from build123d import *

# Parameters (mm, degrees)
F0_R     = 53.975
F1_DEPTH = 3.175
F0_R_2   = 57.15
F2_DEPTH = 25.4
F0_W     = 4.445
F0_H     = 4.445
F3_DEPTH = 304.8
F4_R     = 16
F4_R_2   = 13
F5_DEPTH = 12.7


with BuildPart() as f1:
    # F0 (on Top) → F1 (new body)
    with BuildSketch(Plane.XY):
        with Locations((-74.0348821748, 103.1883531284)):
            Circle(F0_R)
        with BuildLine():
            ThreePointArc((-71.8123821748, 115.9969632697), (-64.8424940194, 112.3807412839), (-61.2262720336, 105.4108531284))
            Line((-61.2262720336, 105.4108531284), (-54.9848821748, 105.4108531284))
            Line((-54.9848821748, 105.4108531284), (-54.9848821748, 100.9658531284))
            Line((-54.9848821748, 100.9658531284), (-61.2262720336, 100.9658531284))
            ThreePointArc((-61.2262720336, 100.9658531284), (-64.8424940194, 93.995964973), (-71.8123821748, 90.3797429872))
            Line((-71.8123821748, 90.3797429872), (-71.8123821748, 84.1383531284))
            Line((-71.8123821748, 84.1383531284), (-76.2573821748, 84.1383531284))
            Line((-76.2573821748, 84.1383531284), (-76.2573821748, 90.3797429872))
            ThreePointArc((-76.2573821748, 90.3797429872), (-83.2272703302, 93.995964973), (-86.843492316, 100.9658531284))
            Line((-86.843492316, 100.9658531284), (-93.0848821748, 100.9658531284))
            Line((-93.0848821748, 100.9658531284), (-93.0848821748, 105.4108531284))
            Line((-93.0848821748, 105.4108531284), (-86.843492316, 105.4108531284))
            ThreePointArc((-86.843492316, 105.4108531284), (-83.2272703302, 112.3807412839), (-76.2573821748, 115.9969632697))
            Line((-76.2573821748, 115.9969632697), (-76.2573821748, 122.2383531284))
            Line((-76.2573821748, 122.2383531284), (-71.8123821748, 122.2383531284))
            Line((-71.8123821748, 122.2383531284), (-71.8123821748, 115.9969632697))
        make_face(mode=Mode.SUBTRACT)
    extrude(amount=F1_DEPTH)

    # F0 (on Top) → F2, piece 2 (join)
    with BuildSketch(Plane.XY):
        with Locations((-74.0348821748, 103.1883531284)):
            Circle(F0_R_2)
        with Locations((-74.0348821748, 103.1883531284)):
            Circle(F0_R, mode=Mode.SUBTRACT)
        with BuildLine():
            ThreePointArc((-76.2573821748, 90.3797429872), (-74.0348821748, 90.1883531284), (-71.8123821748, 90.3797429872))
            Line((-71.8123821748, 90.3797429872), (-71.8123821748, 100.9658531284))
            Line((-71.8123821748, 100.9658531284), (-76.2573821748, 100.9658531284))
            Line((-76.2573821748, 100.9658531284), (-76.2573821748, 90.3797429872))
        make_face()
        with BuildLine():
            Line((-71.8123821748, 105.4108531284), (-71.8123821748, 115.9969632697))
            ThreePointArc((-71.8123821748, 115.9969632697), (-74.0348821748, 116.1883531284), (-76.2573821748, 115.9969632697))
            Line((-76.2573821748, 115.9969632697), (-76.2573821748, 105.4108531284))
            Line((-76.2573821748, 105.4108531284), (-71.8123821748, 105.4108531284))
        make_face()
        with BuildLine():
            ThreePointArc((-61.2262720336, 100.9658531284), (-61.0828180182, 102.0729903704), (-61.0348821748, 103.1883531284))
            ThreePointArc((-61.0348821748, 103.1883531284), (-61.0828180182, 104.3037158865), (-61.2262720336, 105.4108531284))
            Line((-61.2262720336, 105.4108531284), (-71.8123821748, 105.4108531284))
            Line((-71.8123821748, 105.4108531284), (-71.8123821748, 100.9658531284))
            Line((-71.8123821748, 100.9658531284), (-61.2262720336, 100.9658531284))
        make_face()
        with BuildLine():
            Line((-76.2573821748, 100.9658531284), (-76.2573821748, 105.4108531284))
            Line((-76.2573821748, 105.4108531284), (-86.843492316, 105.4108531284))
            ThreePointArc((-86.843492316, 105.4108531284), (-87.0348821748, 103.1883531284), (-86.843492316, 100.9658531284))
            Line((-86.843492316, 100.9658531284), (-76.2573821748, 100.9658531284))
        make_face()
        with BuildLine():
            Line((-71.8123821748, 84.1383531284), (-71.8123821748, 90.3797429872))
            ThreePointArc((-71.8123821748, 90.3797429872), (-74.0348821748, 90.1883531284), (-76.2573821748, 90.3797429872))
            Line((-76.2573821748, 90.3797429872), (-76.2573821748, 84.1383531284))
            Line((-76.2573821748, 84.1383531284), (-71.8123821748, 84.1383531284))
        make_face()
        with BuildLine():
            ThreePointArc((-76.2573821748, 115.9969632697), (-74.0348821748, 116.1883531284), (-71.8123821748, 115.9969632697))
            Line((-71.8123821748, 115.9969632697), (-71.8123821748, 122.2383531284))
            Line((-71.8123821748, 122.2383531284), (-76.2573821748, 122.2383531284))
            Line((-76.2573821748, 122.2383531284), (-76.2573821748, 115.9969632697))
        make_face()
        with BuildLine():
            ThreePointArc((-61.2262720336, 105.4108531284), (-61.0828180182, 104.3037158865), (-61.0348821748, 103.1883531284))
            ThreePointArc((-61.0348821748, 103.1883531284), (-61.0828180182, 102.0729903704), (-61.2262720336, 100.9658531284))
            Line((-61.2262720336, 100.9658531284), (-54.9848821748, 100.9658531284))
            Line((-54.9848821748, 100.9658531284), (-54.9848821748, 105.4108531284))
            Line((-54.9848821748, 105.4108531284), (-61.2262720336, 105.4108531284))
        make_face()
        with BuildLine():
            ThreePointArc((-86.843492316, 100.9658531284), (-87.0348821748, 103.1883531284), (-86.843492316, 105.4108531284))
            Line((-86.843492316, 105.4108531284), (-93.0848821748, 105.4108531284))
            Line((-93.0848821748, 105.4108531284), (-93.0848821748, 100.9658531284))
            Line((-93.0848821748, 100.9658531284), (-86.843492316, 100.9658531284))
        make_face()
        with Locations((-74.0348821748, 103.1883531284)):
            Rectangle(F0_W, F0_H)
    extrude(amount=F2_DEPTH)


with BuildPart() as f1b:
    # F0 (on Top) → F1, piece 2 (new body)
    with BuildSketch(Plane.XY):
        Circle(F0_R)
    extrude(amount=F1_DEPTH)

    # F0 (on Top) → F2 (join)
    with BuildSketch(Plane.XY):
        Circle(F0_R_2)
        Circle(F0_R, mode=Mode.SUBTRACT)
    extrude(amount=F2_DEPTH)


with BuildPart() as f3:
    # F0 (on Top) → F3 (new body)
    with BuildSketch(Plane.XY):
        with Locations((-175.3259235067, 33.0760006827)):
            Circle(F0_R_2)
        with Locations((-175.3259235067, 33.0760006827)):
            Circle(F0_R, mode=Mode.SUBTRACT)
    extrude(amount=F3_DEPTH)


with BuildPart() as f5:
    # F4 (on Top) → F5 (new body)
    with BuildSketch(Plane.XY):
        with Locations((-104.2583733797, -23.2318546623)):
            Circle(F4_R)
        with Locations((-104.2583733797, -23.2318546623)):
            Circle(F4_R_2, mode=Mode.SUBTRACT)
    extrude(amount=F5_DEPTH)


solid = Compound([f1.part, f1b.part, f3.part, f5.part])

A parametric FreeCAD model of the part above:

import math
import FreeCAD as App
import Part
import Sketcher

V = App.Vector
Q = App.Units.Quantity

doc = App.newDocument("Part")
params = doc.addObject("Spreadsheet::Sheet", "Params")
for row, (alias, value) in enumerate([
    ("sketch1_diameter", "4.25 in"),
    ("sketch1_width", "0.175 in"),
    ("pad1_length", "0.125 in"),
    ("sketch2_diameter", "4.5 in"),
    ("sketch2_diameter2", "4.25 in"),
    ("sketch2_width", "0.175 in"),
    ("pad2_length", "1 in"),
    ("sketch3_diameter", "4.25 in"),
    ("pad3_length", "0.125 in"),
    ("sketch4_diameter", "4.5 in"),
    ("sketch4_diameter2", "4.25 in"),
    ("pad4_length", "1 in"),
    ("sketch5_diameter", "4.5 in"),
    ("sketch5_diameter2", "4.25 in"),
    ("pad5_length", "12 in"),
    ("pad6_length", "0.5 in"),
], start=1):
    params.set(f"A{row}", alias)
    params.set(f"B{row}", "=" + value)
    params.setAlias(f"B{row}", alias)

body = doc.addObject("PartDesign::Body", "Body")

sketch1 = doc.addObject("Sketcher::SketchObject", "Sketch")
body.addObject(sketch1)
sketch1.AttachmentSupport = (doc.XY_Plane, [""])
sketch1.MapMode = "FlatFace"
sketch1.addGeometry(Part.Circle(V(-74, 103.2, 0), V(0, 0, 1), 54), False)
sketch1.addGeometry(Part.LineSegment(V(-71.8, 122.2, 0), V(-71.8, 116, 0)), False)
sketch1.addGeometry(Part.ArcOfCircle(Part.Circle(V(-74, 103.2, 0), V(0, 0, 1), 13), math.radians(10), math.radians(80)), False)
sketch1.addGeometry(Part.LineSegment(V(-61.2, 105.4, 0), V(-55, 105.4, 0)), False)
sketch1.addGeometry(Part.LineSegment(V(-55, 105.4, 0), V(-55, 101, 0)), False)
sketch1.addGeometry(Part.LineSegment(V(-55, 101, 0), V(-61.2, 101, 0)), False)
sketch1.addGeometry(Part.ArcOfCircle(Part.Circle(V(-74, 103.2, 0), V(0, 0, 1), 13), math.radians(-80), math.radians(-10)), False)
sketch1.addGeometry(Part.LineSegment(V(-71.8, 90.4, 0), V(-71.8, 84.1, 0)), False)
sketch1.addGeometry(Part.LineSegment(V(-71.8, 84.1, 0), V(-76.3, 84.1, 0)), False)
sketch1.addGeometry(Part.LineSegment(V(-76.3, 84.1, 0), V(-76.3, 90.4, 0)), False)
sketch1.addGeometry(Part.ArcOfCircle(Part.Circle(V(-74, 103.2, 0), V(0, 0, 1), 13), math.radians(-170), math.radians(-100)), False)
sketch1.addGeometry(Part.LineSegment(V(-86.8, 101, 0), V(-93.1, 101, 0)), False)
sketch1.addGeometry(Part.LineSegment(V(-93.1, 101, 0), V(-93.1, 105.4, 0)), False)
sketch1.addGeometry(Part.LineSegment(V(-93.1, 105.4, 0), V(-86.8, 105.4, 0)), False)
sketch1.addGeometry(Part.ArcOfCircle(Part.Circle(V(-74, 103.2, 0), V(0, 0, 1), 13), math.radians(100), math.radians(170)), False)
sketch1.addGeometry(Part.LineSegment(V(-76.3, 116, 0), V(-76.3, 122.2, 0)), False)
sketch1.addGeometry(Part.LineSegment(V(-76.3, 122.2, 0), V(-71.8, 122.2, 0)), False)
sketch1.addConstraint(Sketcher.Constraint("Coincident", 1, 2, 2, 2))
sketch1.addConstraint(Sketcher.Constraint("Coincident", 2, 1, 3, 1))
sketch1.addConstraint(Sketcher.Constraint("Coincident", 3, 2, 4, 1))
sketch1.addConstraint(Sketcher.Constraint("Coincident", 4, 2, 5, 1))
sketch1.addConstraint(Sketcher.Constraint("Coincident", 5, 2, 6, 2))
sketch1.addConstraint(Sketcher.Constraint("Coincident", 6, 1, 7, 1))
sketch1.addConstraint(Sketcher.Constraint("Coincident", 7, 2, 8, 1))
sketch1.addConstraint(Sketcher.Constraint("Coincident", 8, 2, 9, 1))
sketch1.addConstraint(Sketcher.Constraint("Coincident", 9, 2, 10, 2))
sketch1.addConstraint(Sketcher.Constraint("Coincident", 10, 1, 11, 1))
sketch1.addConstraint(Sketcher.Constraint("Coincident", 11, 2, 12, 1))
sketch1.addConstraint(Sketcher.Constraint("Coincident", 12, 2, 13, 1))
sketch1.addConstraint(Sketcher.Constraint("Coincident", 13, 2, 14, 2))
sketch1.addConstraint(Sketcher.Constraint("Coincident", 14, 1, 15, 1))
sketch1.addConstraint(Sketcher.Constraint("Coincident", 15, 2, 16, 1))
sketch1.addConstraint(Sketcher.Constraint("Coincident", 16, 2, 1, 1))
sketch1.addConstraint(Sketcher.Constraint("Vertical", 1))
sketch1.addConstraint(Sketcher.Constraint("Horizontal", 3))
sketch1.addConstraint(Sketcher.Constraint("Vertical", 4))
sketch1.addConstraint(Sketcher.Constraint("Horizontal", 5))
sketch1.addConstraint(Sketcher.Constraint("Vertical", 7))
sketch1.addConstraint(Sketcher.Constraint("Horizontal", 8))
sketch1.addConstraint(Sketcher.Constraint("Vertical", 9))
sketch1.addConstraint(Sketcher.Constraint("Horizontal", 11))
sketch1.addConstraint(Sketcher.Constraint("Vertical", 12))
sketch1.addConstraint(Sketcher.Constraint("Horizontal", 13))
sketch1.addConstraint(Sketcher.Constraint("Vertical", 15))
sketch1.addConstraint(Sketcher.Constraint("Horizontal", 16))
sketch1.addConstraint(Sketcher.Constraint("Coincident", 2, 3, 0, 3))
sketch1.addConstraint(Sketcher.Constraint("Coincident", 6, 3, 0, 3))
sketch1.addConstraint(Sketcher.Constraint("Coincident", 10, 3, 0, 3))
sketch1.addConstraint(Sketcher.Constraint("Coincident", 14, 3, 0, 3))
sketch1.addConstraint(Sketcher.Constraint("Equal", 2, 6))
sketch1.addConstraint(Sketcher.Constraint("Equal", 6, 10))
sketch1.addConstraint(Sketcher.Constraint("Equal", 10, 14))
sketch1.addConstraint(Sketcher.Constraint("Horizontal", 6, 1, 9, 2))
sketch1.addConstraint(Sketcher.Constraint("Horizontal", 5, 2, 10, 1))
sketch1.addConstraint(Sketcher.Constraint("Horizontal", 3, 2, 12, 2))
sketch1.addConstraint(Sketcher.Constraint("Horizontal", 1, 2, 14, 1))
sketch1.addConstraint(Sketcher.Constraint("Vertical", 2, 1, 5, 2))
sketch1.addConstraint(Sketcher.Constraint("Vertical", 1, 2, 6, 1))
sketch1.addConstraint(Sketcher.Constraint("Equal", 5, 11))
sketch1.addConstraint(Sketcher.Constraint("Equal", 13, 1))
sketch1.addConstraint(Sketcher.Constraint("Equal", 16, 4))
sketch1.addConstraint(Sketcher.Constraint("Equal", 1, 7))
sketch1.addConstraint(Sketcher.Constraint("Diameter", 0, Q("4.25 in")))
sketch1.addConstraint(Sketcher.Constraint("DistanceX", 8, 2, 8, 1, Q("0.175 in")))
sketch1.addConstraint(Sketcher.Constraint("Radius", 2, 13.0))
sketch1.addConstraint(Sketcher.Constraint("DistanceX", 2, 3, 3, 2, Q("0.75 in")))
sketch1.addConstraint(Sketcher.Constraint("DistanceX", 0, 3, -1, 1, 74.034882))
sketch1.addConstraint(Sketcher.Constraint("DistanceY", -1, 1, 0, 3, 103.188353))
sketch1.setExpression("Constraints[45]", "Params.sketch1_diameter")
sketch1.setExpression("Constraints[46]", "Params.sketch1_width")
pad1 = doc.addObject("PartDesign::Pad", "Pad")
body.addObject(pad1)
pad1.Profile = sketch1
pad1.setExpression("Length", "Params.pad1_length")

sketch2 = doc.addObject("Sketcher::SketchObject", "Sketch001")
body.addObject(sketch2)
sketch2.AttachmentSupport = (doc.XY_Plane, [""])
sketch2.MapMode = "FlatFace"
sketch2.addGeometry(Part.Circle(V(-74, 103.2, 0), V(0, 0, 1), 57.1), False)
sketch2.addGeometry(Part.Circle(V(-74, 103.2, 0), V(0, 0, 1), 54), False)
sketch2.addGeometry(Part.LineSegment(V(-76.3, 101, 0), V(-76.3, 84.1, 0)), False)
sketch2.addGeometry(Part.LineSegment(V(-76.3, 84.1, 0), V(-71.8, 84.1, 0)), False)
sketch2.addGeometry(Part.LineSegment(V(-71.8, 84.1, 0), V(-71.8, 101, 0)), False)
sketch2.addGeometry(Part.LineSegment(V(-71.8, 101, 0), V(-55, 101, 0)), False)
sketch2.addGeometry(Part.LineSegment(V(-55, 101, 0), V(-55, 105.4, 0)), False)
sketch2.addGeometry(Part.LineSegment(V(-55, 105.4, 0), V(-71.8, 105.4, 0)), False)
sketch2.addGeometry(Part.LineSegment(V(-71.8, 105.4, 0), V(-71.8, 122.2, 0)), False)
sketch2.addGeometry(Part.LineSegment(V(-71.8, 122.2, 0), V(-76.3, 122.2, 0)), False)
sketch2.addGeometry(Part.LineSegment(V(-76.3, 122.2, 0), V(-76.3, 105.4, 0)), False)
sketch2.addGeometry(Part.LineSegment(V(-76.3, 105.4, 0), V(-93.1, 105.4, 0)), False)
sketch2.addGeometry(Part.LineSegment(V(-93.1, 105.4, 0), V(-93.1, 101, 0)), False)
sketch2.addGeometry(Part.LineSegment(V(-93.1, 101, 0), V(-76.3, 101, 0)), False)
sketch2.addConstraint(Sketcher.Constraint("Coincident", 2, 2, 3, 1))
sketch2.addConstraint(Sketcher.Constraint("Coincident", 3, 2, 4, 1))
sketch2.addConstraint(Sketcher.Constraint("Coincident", 4, 2, 5, 1))
sketch2.addConstraint(Sketcher.Constraint("Coincident", 5, 2, 6, 1))
sketch2.addConstraint(Sketcher.Constraint("Coincident", 6, 2, 7, 1))
sketch2.addConstraint(Sketcher.Constraint("Coincident", 7, 2, 8, 1))
sketch2.addConstraint(Sketcher.Constraint("Coincident", 8, 2, 9, 1))
sketch2.addConstraint(Sketcher.Constraint("Coincident", 9, 2, 10, 1))
sketch2.addConstraint(Sketcher.Constraint("Coincident", 10, 2, 11, 1))
sketch2.addConstraint(Sketcher.Constraint("Coincident", 11, 2, 12, 1))
sketch2.addConstraint(Sketcher.Constraint("Coincident", 12, 2, 13, 1))
sketch2.addConstraint(Sketcher.Constraint("Coincident", 13, 2, 2, 1))
sketch2.addConstraint(Sketcher.Constraint("Vertical", 2))
sketch2.addConstraint(Sketcher.Constraint("Horizontal", 3))
sketch2.addConstraint(Sketcher.Constraint("Vertical", 4))
sketch2.addConstraint(Sketcher.Constraint("Horizontal", 5))
sketch2.addConstraint(Sketcher.Constraint("Vertical", 6))
sketch2.addConstraint(Sketcher.Constraint("Horizontal", 7))
sketch2.addConstraint(Sketcher.Constraint("Vertical", 8))
sketch2.addConstraint(Sketcher.Constraint("Horizontal", 9))
sketch2.addConstraint(Sketcher.Constraint("Vertical", 10))
sketch2.addConstraint(Sketcher.Constraint("Horizontal", 11))
sketch2.addConstraint(Sketcher.Constraint("Vertical", 12))
sketch2.addConstraint(Sketcher.Constraint("Horizontal", 13))
sketch2.addConstraint(Sketcher.Constraint("Coincident", 1, 3, 0, 3))
sketch2.addConstraint(Sketcher.Constraint("Horizontal", 7, 2, 10, 2))
sketch2.addConstraint(Sketcher.Constraint("Horizontal", 5, 2, 12, 2))
sketch2.addConstraint(Sketcher.Constraint("Vertical", 4, 2, 7, 2))
sketch2.addConstraint(Sketcher.Constraint("Vertical", 2, 2, 9, 2))
sketch2.addConstraint(Sketcher.Constraint("Equal", 7, 11))
sketch2.addConstraint(Sketcher.Constraint("Equal", 13, 2))
sketch2.addConstraint(Sketcher.Constraint("Equal", 9, 6))
sketch2.addConstraint(Sketcher.Constraint("Equal", 4, 8))
sketch2.addConstraint(Sketcher.Constraint("Diameter", 0, Q("4.5 in")))
sketch2.addConstraint(Sketcher.Constraint("Diameter", 1, Q("4.25 in")))
sketch2.addConstraint(Sketcher.Constraint("DistanceX", 3, 1, 3, 2, Q("0.175 in")))
sketch2.addConstraint(Sketcher.Constraint("DistanceY", 2, 2, 0, 3, Q("0.75 in")))
sketch2.addConstraint(Sketcher.Constraint("DistanceX", 0, 3, 5, 2, Q("0.75 in")))
sketch2.addConstraint(Sketcher.Constraint("DistanceY", 0, 3, 8, 2, Q("0.75 in")))
sketch2.addConstraint(Sketcher.Constraint("DistanceX", 0, 3, -1, 1, 74.034882))
sketch2.addConstraint(Sketcher.Constraint("DistanceY", -1, 1, 0, 3, 103.188353))
sketch2.setExpression("Constraints[33]", "Params.sketch2_diameter")
sketch2.setExpression("Constraints[34]", "Params.sketch2_diameter2")
sketch2.setExpression("Constraints[35]", "Params.sketch2_width")
pad2 = doc.addObject("PartDesign::Pad", "Pad001")
body.addObject(pad2)
pad2.Profile = sketch2
pad2.setExpression("Length", "Params.pad2_length")
body2 = doc.addObject("PartDesign::Body", "Body001")

sketch3 = doc.addObject("Sketcher::SketchObject", "Sketch002")
body2.addObject(sketch3)
sketch3.AttachmentSupport = (doc.getObject("XY_Plane001"), [""])
sketch3.MapMode = "FlatFace"
sketch3.addGeometry(Part.Circle(V(0, 0, 0), V(0, 0, 1), 54), False)
sketch3.addConstraint(Sketcher.Constraint("Coincident", 0, 3, -1, 1))
sketch3.addConstraint(Sketcher.Constraint("Diameter", 0, Q("4.25 in")))
sketch3.setExpression("Constraints[1]", "Params.sketch3_diameter")
pad3 = doc.addObject("PartDesign::Pad", "Pad002")
body2.addObject(pad3)
pad3.Profile = sketch3
pad3.setExpression("Length", "Params.pad3_length")

sketch4 = doc.addObject("Sketcher::SketchObject", "Sketch003")
body2.addObject(sketch4)
sketch4.AttachmentSupport = (doc.getObject("XY_Plane001"), [""])
sketch4.MapMode = "FlatFace"
sketch4.addGeometry(Part.Circle(V(0, 0, 0), V(0, 0, 1), 57), False)
sketch4.addGeometry(Part.Circle(V(0, 0, 0), V(0, 0, 1), 54), False)
sketch4.addConstraint(Sketcher.Constraint("Coincident", 0, 3, -1, 1))
sketch4.addConstraint(Sketcher.Constraint("Coincident", 1, 3, -1, 1))
sketch4.addConstraint(Sketcher.Constraint("Diameter", 0, Q("4.5 in")))
sketch4.addConstraint(Sketcher.Constraint("Diameter", 1, Q("4.25 in")))
sketch4.setExpression("Constraints[2]", "Params.sketch4_diameter")
sketch4.setExpression("Constraints[3]", "Params.sketch4_diameter2")
pad4 = doc.addObject("PartDesign::Pad", "Pad003")
body2.addObject(pad4)
pad4.Profile = sketch4
pad4.setExpression("Length", "Params.pad4_length")
body3 = doc.addObject("PartDesign::Body", "Body002")

sketch5 = doc.addObject("Sketcher::SketchObject", "Sketch004")
body3.addObject(sketch5)
sketch5.AttachmentSupport = (doc.getObject("XY_Plane002"), [""])
sketch5.MapMode = "FlatFace"
sketch5.addGeometry(Part.Circle(V(-175, 33, 0), V(0, 0, 1), 57), False)
sketch5.addGeometry(Part.Circle(V(-175, 33, 0), V(0, 0, 1), 54), False)
sketch5.addConstraint(Sketcher.Constraint("Coincident", 1, 3, 0, 3))
sketch5.addConstraint(Sketcher.Constraint("Diameter", 0, Q("4.5 in")))
sketch5.addConstraint(Sketcher.Constraint("Diameter", 1, Q("4.25 in")))
sketch5.addConstraint(Sketcher.Constraint("DistanceY", -1, 1, 0, 3, 33.076001))
sketch5.addConstraint(Sketcher.Constraint("DistanceX", 0, 3, -1, 1, 175.325924))
sketch5.setExpression("Constraints[1]", "Params.sketch5_diameter")
sketch5.setExpression("Constraints[2]", "Params.sketch5_diameter2")
pad5 = doc.addObject("PartDesign::Pad", "Pad004")
body3.addObject(pad5)
pad5.Profile = sketch5
pad5.setExpression("Length", "Params.pad5_length")
body4 = doc.addObject("PartDesign::Body", "Body003")

sketch6 = doc.addObject("Sketcher::SketchObject", "Sketch005")
body4.addObject(sketch6)
sketch6.AttachmentSupport = (doc.getObject("XY_Plane003"), [""])
sketch6.MapMode = "FlatFace"
sketch6.addGeometry(Part.Circle(V(-104, -23, 0), V(0, 0, 1), 16), False)
sketch6.addGeometry(Part.Circle(V(-104, -23, 0), V(0, 0, 1), 13), False)
sketch6.addConstraint(Sketcher.Constraint("Coincident", 1, 3, 0, 3))
sketch6.addConstraint(Sketcher.Constraint("Diameter", 0, 32.0))
sketch6.addConstraint(Sketcher.Constraint("Diameter", 1, 26.0))
sketch6.addConstraint(Sketcher.Constraint("DistanceX", 0, 3, -1, 1, 104.258373))
sketch6.addConstraint(Sketcher.Constraint("DistanceY", 0, 3, -1, 1, 23.231855))
pad6 = doc.addObject("PartDesign::Pad", "Pad005")
body4.addObject(pad6)
pad6.Profile = sketch6
pad6.setExpression("Length", "Params.pad6_length")

doc.recompute()
